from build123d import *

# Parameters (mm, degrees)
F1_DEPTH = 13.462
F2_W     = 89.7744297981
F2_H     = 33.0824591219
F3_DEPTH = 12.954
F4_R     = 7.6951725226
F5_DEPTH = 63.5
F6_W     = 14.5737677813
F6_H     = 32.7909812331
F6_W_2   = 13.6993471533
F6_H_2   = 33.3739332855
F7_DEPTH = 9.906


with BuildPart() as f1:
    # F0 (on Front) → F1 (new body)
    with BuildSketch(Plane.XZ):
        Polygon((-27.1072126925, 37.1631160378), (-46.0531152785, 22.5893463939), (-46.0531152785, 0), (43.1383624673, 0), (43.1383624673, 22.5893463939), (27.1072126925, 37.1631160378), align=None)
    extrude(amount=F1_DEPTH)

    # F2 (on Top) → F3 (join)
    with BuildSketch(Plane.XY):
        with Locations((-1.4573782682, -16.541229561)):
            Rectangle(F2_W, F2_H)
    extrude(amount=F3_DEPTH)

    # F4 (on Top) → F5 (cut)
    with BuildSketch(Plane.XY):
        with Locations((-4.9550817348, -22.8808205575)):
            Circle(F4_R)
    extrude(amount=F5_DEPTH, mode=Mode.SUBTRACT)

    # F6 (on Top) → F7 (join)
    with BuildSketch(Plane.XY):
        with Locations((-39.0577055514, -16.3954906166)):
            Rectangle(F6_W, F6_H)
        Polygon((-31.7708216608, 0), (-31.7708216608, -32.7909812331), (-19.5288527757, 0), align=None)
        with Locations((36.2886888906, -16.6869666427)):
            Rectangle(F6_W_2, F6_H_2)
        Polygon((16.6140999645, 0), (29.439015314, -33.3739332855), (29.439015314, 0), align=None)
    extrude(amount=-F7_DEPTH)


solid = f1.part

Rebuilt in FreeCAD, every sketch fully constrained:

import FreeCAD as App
import Part
import Sketcher
from FreeCAD import Vector
Q = App.Units.Quantity

doc = App.newDocument("Part")
body = doc.addObject("PartDesign::Body", "Body")

# Sketch on XZ plane
sketch1 = body.newObject("Sketcher::SketchObject", "Sketch")
sketch1.AttachmentSupport = (doc.getObject("XZ_Plane"), [""])
sketch1.MapMode = "FlatFace"
sketch1.addGeometry([
    Part.LineSegment(Vector(-27, 37, 0), Vector(-46, 23, 0)),  # 0
    Part.LineSegment(Vector(-46, 23, 0), Vector(-46, 0, 0)),  # 1
    Part.LineSegment(Vector(-46, 0, 0), Vector(43, 0, 0)),  # 2
    Part.LineSegment(Vector(43, 0, 0), Vector(43, 23, 0)),  # 3
    Part.LineSegment(Vector(43, 23, 0), Vector(27, 37, 0)),  # 4
    Part.LineSegment(Vector(27, 37, 0), Vector(-27, 37, 0)),  # 5
], False)
sketch1.addConstraint([
    Sketcher.Constraint("Coincident", 0, 2, 1, 1),
    Sketcher.Constraint("Coincident", 1, 2, 2, 1),
    Sketcher.Constraint("Coincident", 2, 2, 3, 1),
    Sketcher.Constraint("Coincident", 3, 2, 4, 1),
    Sketcher.Constraint("Coincident", 4, 2, 5, 1),
    Sketcher.Constraint("Coincident", 5, 2, 0, 1),
    Sketcher.Constraint("Vertical", 1),
    Sketcher.Constraint("Horizontal", 2),
    Sketcher.Constraint("Vertical", 3),
    Sketcher.Constraint("Horizontal", 5),
    Sketcher.Constraint("PointOnObject", 1, 2, -1),
    Sketcher.Constraint("Horizontal", 0, 2, 3, 2),
    Sketcher.Constraint("Distance", 0, Q("23.902761 mm")),
    Sketcher.Constraint("Distance", 4, Q("21.665468 mm")),
    Sketcher.Constraint("DistanceX", 2, 1, 2, 2, Q("89.191478 mm")),
    Sketcher.Constraint("DistanceX", 5, 2, 5, 1, Q("54.214425 mm")),
    Sketcher.Constraint("DistanceY", 1, 2, 1, 1, Q("22.589346 mm")),
    Sketcher.Constraint("DistanceX", 0, 2, -1, 1, Q("46.053115 mm")),
])
pad1 = body.newObject("PartDesign::Pad", "Pad")
pad1.Profile = sketch1
pad1.Length = Q("0.53 in")

# Sketch on XY plane
sketch2 = body.newObject("Sketcher::SketchObject", "Sketch001")
sketch2.AttachmentSupport = (doc.getObject("XY_Plane"), [""])
sketch2.MapMode = "FlatFace"
sketch2.addGeometry([
    Part.LineSegment(Vector(-46, 0, 0), Vector(-46, -33, 0)),
    Part.LineSegment(Vector(-46, -33, 0), Vector(43, -33, 0)),
    Part.LineSegment(Vector(43, -33, 0), Vector(43, 0, 0)),
    Part.LineSegment(Vector(43, 0, 0), Vector(-46, 0, 0)),
], False)
sketch2.addConstraint([
    Sketcher.Constraint("Coincident", 0, 2, 1, 1),
    Sketcher.Constraint("Coincident", 1, 2, 2, 1),
    Sketcher.Constraint("Coincident", 2, 2, 3, 1),
    Sketcher.Constraint("Coincident", 3, 2, 0, 1),
    Sketcher.Constraint("Vertical", 0),
    Sketcher.Constraint("Horizontal", 1),
    Sketcher.Constraint("Vertical", 2),
    Sketcher.Constraint("Horizontal", 3),
    Sketcher.Constraint("PointOnObject", 2, 2, -1),
    Sketcher.Constraint("DistanceX", 1, 1, 1, 2, Q("89.77443 mm")),
    Sketcher.Constraint("DistanceY", 0, 2, 0, 1, Q("33.082459 mm")),
    Sketcher.Constraint("DistanceX", 0, 2, -1, 1, Q("46.344593 mm")),
])
pad2 = body.newObject("PartDesign::Pad", "Pad001")
pad2.Profile = sketch2
pad2.Length = Q("0.51 in")

# Sketch on XY plane
sketch3 = body.newObject("Sketcher::SketchObject", "Sketch002")
sketch3.AttachmentSupport = (doc.getObject("XY_Plane"), [""])
sketch3.MapMode = "FlatFace"
sketch3.addGeometry(Part.Circle(Vector(-5, -23, 0), Vector(0, 0, 1), 8), False)
sketch3.addConstraint([
    Sketcher.Constraint("Diameter", 0, Q("15.390345 mm")),
    Sketcher.Constraint("DistanceX", 0, 3, -1, 1, Q("4.955082 mm")),
    Sketcher.Constraint("DistanceY", 0, 3, -1, 1, Q("22.880821 mm")),
])
pocket1 = body.newObject("PartDesign::Pocket", "Pocket")
pocket1.Profile = sketch3
pocket1.Length = Q("2.5 in")
pocket1.Reversed = True

# Sketch on XY plane
sketch4 = body.newObject("Sketcher::SketchObject", "Sketch003")
sketch4.AttachmentSupport = (doc.getObject("XY_Plane"), [""])
sketch4.MapMode = "FlatFace"
sketch4.addGeometry([
    Part.LineSegment(Vector(-46, 0, 0), Vector(-46, -33, 0)),  # 0
    Part.LineSegment(Vector(-46, -33, 0), Vector(-32, -33, 0)),  # 1
    Part.LineSegment(Vector(-32, -33, 0), Vector(-20, 0, 0)),  # 2
    Part.LineSegment(Vector(-20, 0, 0), Vector(-32, 0, 0)),  # 3
    Part.LineSegment(Vector(-32, 0, 0), Vector(-46, 0, 0)),  # 4
    Part.LineSegment(Vector(29, -33, 0), Vector(43, -33, 0)),  # 5
    Part.LineSegment(Vector(43, -33, 0), Vector(43, 0, 0)),  # 6
    Part.LineSegment(Vector(43, 0, 0), Vector(29, 0, 0)),  # 7
    Part.LineSegment(Vector(29, 0, 0), Vector(17, 0, 0)),  # 8
    Part.LineSegment(Vector(17, 0, 0), Vector(29, -33, 0)),  # 9
], False)
sketch4.addConstraint([
    Sketcher.Constraint("Coincident", 0, 2, 1, 1),
    Sketcher.Constraint("Coincident", 1, 2, 2, 1),
    Sketcher.Constraint("Coincident", 2, 2, 3, 1),
    Sketcher.Constraint("Coincident", 3, 2, 4, 1),
    Sketcher.Constraint("Coincident", 4, 2, 0, 1),
    Sketcher.Constraint("Coincident", 5, 2, 6, 1),
    Sketcher.Constraint("Coincident", 6, 2, 7, 1),
    Sketcher.Constraint("Coincident", 7, 2, 8, 1),
    Sketcher.Constraint("Coincident", 8, 2, 9, 1),
    Sketcher.Constraint("Coincident", 9, 2, 5, 1),
    Sketcher.Constraint("Vertical", 0),
    Sketcher.Constraint("Horizontal", 1),
    Sketcher.Constraint("Horizontal", 3),
    Sketcher.Constraint("Horizontal", 4),
    Sketcher.Constraint("Horizontal", 5),
    Sketcher.Constraint("Vertical", 6),
    Sketcher.Constraint("Horizontal", 7),
    Sketcher.Constraint("Horizontal", 8),
    Sketcher.Constraint("PointOnObject", 2, 2, -1),
    Sketcher.Constraint("PointOnObject", 6, 2, -1),
    Sketcher.Constraint("Vertical", 1, 2, 3, 2),
    Sketcher.Constraint("Vertical", 7, 2, 9, 2),
    Sketcher.Constraint("DistanceX", 3, 2, 3, 1, Q("12.241969 mm")),
    Sketcher.Constraint("DistanceY", 0, 2, 0, 1, Q("32.790981 mm")),
    Sketcher.Constraint("DistanceX", -1, 1, 8, 2, Q("16.6141 mm")),
    Sketcher.Constraint("Distance", 9, Q("35.753292 mm")),
    Sketcher.Constraint("DistanceX", 1, 1, 1, 2, Q("14.573768 mm")),
    Sketcher.Constraint("DistanceX", 5, 1, 5, 2, Q("13.699347 mm")),
    Sketcher.Constraint("DistanceX", 8, 2, 8, 1, Q("12.824915 mm")),
    Sketcher.Constraint("DistanceX", 0, 2, -1, 1, Q("46.344589 mm")),
])
pad3 = body.newObject("PartDesign::Pad", "Pad002")
pad3.Profile = sketch4
pad3.Length = Q("0.39 in")
pad3.Reversed = True

doc.recompute()
